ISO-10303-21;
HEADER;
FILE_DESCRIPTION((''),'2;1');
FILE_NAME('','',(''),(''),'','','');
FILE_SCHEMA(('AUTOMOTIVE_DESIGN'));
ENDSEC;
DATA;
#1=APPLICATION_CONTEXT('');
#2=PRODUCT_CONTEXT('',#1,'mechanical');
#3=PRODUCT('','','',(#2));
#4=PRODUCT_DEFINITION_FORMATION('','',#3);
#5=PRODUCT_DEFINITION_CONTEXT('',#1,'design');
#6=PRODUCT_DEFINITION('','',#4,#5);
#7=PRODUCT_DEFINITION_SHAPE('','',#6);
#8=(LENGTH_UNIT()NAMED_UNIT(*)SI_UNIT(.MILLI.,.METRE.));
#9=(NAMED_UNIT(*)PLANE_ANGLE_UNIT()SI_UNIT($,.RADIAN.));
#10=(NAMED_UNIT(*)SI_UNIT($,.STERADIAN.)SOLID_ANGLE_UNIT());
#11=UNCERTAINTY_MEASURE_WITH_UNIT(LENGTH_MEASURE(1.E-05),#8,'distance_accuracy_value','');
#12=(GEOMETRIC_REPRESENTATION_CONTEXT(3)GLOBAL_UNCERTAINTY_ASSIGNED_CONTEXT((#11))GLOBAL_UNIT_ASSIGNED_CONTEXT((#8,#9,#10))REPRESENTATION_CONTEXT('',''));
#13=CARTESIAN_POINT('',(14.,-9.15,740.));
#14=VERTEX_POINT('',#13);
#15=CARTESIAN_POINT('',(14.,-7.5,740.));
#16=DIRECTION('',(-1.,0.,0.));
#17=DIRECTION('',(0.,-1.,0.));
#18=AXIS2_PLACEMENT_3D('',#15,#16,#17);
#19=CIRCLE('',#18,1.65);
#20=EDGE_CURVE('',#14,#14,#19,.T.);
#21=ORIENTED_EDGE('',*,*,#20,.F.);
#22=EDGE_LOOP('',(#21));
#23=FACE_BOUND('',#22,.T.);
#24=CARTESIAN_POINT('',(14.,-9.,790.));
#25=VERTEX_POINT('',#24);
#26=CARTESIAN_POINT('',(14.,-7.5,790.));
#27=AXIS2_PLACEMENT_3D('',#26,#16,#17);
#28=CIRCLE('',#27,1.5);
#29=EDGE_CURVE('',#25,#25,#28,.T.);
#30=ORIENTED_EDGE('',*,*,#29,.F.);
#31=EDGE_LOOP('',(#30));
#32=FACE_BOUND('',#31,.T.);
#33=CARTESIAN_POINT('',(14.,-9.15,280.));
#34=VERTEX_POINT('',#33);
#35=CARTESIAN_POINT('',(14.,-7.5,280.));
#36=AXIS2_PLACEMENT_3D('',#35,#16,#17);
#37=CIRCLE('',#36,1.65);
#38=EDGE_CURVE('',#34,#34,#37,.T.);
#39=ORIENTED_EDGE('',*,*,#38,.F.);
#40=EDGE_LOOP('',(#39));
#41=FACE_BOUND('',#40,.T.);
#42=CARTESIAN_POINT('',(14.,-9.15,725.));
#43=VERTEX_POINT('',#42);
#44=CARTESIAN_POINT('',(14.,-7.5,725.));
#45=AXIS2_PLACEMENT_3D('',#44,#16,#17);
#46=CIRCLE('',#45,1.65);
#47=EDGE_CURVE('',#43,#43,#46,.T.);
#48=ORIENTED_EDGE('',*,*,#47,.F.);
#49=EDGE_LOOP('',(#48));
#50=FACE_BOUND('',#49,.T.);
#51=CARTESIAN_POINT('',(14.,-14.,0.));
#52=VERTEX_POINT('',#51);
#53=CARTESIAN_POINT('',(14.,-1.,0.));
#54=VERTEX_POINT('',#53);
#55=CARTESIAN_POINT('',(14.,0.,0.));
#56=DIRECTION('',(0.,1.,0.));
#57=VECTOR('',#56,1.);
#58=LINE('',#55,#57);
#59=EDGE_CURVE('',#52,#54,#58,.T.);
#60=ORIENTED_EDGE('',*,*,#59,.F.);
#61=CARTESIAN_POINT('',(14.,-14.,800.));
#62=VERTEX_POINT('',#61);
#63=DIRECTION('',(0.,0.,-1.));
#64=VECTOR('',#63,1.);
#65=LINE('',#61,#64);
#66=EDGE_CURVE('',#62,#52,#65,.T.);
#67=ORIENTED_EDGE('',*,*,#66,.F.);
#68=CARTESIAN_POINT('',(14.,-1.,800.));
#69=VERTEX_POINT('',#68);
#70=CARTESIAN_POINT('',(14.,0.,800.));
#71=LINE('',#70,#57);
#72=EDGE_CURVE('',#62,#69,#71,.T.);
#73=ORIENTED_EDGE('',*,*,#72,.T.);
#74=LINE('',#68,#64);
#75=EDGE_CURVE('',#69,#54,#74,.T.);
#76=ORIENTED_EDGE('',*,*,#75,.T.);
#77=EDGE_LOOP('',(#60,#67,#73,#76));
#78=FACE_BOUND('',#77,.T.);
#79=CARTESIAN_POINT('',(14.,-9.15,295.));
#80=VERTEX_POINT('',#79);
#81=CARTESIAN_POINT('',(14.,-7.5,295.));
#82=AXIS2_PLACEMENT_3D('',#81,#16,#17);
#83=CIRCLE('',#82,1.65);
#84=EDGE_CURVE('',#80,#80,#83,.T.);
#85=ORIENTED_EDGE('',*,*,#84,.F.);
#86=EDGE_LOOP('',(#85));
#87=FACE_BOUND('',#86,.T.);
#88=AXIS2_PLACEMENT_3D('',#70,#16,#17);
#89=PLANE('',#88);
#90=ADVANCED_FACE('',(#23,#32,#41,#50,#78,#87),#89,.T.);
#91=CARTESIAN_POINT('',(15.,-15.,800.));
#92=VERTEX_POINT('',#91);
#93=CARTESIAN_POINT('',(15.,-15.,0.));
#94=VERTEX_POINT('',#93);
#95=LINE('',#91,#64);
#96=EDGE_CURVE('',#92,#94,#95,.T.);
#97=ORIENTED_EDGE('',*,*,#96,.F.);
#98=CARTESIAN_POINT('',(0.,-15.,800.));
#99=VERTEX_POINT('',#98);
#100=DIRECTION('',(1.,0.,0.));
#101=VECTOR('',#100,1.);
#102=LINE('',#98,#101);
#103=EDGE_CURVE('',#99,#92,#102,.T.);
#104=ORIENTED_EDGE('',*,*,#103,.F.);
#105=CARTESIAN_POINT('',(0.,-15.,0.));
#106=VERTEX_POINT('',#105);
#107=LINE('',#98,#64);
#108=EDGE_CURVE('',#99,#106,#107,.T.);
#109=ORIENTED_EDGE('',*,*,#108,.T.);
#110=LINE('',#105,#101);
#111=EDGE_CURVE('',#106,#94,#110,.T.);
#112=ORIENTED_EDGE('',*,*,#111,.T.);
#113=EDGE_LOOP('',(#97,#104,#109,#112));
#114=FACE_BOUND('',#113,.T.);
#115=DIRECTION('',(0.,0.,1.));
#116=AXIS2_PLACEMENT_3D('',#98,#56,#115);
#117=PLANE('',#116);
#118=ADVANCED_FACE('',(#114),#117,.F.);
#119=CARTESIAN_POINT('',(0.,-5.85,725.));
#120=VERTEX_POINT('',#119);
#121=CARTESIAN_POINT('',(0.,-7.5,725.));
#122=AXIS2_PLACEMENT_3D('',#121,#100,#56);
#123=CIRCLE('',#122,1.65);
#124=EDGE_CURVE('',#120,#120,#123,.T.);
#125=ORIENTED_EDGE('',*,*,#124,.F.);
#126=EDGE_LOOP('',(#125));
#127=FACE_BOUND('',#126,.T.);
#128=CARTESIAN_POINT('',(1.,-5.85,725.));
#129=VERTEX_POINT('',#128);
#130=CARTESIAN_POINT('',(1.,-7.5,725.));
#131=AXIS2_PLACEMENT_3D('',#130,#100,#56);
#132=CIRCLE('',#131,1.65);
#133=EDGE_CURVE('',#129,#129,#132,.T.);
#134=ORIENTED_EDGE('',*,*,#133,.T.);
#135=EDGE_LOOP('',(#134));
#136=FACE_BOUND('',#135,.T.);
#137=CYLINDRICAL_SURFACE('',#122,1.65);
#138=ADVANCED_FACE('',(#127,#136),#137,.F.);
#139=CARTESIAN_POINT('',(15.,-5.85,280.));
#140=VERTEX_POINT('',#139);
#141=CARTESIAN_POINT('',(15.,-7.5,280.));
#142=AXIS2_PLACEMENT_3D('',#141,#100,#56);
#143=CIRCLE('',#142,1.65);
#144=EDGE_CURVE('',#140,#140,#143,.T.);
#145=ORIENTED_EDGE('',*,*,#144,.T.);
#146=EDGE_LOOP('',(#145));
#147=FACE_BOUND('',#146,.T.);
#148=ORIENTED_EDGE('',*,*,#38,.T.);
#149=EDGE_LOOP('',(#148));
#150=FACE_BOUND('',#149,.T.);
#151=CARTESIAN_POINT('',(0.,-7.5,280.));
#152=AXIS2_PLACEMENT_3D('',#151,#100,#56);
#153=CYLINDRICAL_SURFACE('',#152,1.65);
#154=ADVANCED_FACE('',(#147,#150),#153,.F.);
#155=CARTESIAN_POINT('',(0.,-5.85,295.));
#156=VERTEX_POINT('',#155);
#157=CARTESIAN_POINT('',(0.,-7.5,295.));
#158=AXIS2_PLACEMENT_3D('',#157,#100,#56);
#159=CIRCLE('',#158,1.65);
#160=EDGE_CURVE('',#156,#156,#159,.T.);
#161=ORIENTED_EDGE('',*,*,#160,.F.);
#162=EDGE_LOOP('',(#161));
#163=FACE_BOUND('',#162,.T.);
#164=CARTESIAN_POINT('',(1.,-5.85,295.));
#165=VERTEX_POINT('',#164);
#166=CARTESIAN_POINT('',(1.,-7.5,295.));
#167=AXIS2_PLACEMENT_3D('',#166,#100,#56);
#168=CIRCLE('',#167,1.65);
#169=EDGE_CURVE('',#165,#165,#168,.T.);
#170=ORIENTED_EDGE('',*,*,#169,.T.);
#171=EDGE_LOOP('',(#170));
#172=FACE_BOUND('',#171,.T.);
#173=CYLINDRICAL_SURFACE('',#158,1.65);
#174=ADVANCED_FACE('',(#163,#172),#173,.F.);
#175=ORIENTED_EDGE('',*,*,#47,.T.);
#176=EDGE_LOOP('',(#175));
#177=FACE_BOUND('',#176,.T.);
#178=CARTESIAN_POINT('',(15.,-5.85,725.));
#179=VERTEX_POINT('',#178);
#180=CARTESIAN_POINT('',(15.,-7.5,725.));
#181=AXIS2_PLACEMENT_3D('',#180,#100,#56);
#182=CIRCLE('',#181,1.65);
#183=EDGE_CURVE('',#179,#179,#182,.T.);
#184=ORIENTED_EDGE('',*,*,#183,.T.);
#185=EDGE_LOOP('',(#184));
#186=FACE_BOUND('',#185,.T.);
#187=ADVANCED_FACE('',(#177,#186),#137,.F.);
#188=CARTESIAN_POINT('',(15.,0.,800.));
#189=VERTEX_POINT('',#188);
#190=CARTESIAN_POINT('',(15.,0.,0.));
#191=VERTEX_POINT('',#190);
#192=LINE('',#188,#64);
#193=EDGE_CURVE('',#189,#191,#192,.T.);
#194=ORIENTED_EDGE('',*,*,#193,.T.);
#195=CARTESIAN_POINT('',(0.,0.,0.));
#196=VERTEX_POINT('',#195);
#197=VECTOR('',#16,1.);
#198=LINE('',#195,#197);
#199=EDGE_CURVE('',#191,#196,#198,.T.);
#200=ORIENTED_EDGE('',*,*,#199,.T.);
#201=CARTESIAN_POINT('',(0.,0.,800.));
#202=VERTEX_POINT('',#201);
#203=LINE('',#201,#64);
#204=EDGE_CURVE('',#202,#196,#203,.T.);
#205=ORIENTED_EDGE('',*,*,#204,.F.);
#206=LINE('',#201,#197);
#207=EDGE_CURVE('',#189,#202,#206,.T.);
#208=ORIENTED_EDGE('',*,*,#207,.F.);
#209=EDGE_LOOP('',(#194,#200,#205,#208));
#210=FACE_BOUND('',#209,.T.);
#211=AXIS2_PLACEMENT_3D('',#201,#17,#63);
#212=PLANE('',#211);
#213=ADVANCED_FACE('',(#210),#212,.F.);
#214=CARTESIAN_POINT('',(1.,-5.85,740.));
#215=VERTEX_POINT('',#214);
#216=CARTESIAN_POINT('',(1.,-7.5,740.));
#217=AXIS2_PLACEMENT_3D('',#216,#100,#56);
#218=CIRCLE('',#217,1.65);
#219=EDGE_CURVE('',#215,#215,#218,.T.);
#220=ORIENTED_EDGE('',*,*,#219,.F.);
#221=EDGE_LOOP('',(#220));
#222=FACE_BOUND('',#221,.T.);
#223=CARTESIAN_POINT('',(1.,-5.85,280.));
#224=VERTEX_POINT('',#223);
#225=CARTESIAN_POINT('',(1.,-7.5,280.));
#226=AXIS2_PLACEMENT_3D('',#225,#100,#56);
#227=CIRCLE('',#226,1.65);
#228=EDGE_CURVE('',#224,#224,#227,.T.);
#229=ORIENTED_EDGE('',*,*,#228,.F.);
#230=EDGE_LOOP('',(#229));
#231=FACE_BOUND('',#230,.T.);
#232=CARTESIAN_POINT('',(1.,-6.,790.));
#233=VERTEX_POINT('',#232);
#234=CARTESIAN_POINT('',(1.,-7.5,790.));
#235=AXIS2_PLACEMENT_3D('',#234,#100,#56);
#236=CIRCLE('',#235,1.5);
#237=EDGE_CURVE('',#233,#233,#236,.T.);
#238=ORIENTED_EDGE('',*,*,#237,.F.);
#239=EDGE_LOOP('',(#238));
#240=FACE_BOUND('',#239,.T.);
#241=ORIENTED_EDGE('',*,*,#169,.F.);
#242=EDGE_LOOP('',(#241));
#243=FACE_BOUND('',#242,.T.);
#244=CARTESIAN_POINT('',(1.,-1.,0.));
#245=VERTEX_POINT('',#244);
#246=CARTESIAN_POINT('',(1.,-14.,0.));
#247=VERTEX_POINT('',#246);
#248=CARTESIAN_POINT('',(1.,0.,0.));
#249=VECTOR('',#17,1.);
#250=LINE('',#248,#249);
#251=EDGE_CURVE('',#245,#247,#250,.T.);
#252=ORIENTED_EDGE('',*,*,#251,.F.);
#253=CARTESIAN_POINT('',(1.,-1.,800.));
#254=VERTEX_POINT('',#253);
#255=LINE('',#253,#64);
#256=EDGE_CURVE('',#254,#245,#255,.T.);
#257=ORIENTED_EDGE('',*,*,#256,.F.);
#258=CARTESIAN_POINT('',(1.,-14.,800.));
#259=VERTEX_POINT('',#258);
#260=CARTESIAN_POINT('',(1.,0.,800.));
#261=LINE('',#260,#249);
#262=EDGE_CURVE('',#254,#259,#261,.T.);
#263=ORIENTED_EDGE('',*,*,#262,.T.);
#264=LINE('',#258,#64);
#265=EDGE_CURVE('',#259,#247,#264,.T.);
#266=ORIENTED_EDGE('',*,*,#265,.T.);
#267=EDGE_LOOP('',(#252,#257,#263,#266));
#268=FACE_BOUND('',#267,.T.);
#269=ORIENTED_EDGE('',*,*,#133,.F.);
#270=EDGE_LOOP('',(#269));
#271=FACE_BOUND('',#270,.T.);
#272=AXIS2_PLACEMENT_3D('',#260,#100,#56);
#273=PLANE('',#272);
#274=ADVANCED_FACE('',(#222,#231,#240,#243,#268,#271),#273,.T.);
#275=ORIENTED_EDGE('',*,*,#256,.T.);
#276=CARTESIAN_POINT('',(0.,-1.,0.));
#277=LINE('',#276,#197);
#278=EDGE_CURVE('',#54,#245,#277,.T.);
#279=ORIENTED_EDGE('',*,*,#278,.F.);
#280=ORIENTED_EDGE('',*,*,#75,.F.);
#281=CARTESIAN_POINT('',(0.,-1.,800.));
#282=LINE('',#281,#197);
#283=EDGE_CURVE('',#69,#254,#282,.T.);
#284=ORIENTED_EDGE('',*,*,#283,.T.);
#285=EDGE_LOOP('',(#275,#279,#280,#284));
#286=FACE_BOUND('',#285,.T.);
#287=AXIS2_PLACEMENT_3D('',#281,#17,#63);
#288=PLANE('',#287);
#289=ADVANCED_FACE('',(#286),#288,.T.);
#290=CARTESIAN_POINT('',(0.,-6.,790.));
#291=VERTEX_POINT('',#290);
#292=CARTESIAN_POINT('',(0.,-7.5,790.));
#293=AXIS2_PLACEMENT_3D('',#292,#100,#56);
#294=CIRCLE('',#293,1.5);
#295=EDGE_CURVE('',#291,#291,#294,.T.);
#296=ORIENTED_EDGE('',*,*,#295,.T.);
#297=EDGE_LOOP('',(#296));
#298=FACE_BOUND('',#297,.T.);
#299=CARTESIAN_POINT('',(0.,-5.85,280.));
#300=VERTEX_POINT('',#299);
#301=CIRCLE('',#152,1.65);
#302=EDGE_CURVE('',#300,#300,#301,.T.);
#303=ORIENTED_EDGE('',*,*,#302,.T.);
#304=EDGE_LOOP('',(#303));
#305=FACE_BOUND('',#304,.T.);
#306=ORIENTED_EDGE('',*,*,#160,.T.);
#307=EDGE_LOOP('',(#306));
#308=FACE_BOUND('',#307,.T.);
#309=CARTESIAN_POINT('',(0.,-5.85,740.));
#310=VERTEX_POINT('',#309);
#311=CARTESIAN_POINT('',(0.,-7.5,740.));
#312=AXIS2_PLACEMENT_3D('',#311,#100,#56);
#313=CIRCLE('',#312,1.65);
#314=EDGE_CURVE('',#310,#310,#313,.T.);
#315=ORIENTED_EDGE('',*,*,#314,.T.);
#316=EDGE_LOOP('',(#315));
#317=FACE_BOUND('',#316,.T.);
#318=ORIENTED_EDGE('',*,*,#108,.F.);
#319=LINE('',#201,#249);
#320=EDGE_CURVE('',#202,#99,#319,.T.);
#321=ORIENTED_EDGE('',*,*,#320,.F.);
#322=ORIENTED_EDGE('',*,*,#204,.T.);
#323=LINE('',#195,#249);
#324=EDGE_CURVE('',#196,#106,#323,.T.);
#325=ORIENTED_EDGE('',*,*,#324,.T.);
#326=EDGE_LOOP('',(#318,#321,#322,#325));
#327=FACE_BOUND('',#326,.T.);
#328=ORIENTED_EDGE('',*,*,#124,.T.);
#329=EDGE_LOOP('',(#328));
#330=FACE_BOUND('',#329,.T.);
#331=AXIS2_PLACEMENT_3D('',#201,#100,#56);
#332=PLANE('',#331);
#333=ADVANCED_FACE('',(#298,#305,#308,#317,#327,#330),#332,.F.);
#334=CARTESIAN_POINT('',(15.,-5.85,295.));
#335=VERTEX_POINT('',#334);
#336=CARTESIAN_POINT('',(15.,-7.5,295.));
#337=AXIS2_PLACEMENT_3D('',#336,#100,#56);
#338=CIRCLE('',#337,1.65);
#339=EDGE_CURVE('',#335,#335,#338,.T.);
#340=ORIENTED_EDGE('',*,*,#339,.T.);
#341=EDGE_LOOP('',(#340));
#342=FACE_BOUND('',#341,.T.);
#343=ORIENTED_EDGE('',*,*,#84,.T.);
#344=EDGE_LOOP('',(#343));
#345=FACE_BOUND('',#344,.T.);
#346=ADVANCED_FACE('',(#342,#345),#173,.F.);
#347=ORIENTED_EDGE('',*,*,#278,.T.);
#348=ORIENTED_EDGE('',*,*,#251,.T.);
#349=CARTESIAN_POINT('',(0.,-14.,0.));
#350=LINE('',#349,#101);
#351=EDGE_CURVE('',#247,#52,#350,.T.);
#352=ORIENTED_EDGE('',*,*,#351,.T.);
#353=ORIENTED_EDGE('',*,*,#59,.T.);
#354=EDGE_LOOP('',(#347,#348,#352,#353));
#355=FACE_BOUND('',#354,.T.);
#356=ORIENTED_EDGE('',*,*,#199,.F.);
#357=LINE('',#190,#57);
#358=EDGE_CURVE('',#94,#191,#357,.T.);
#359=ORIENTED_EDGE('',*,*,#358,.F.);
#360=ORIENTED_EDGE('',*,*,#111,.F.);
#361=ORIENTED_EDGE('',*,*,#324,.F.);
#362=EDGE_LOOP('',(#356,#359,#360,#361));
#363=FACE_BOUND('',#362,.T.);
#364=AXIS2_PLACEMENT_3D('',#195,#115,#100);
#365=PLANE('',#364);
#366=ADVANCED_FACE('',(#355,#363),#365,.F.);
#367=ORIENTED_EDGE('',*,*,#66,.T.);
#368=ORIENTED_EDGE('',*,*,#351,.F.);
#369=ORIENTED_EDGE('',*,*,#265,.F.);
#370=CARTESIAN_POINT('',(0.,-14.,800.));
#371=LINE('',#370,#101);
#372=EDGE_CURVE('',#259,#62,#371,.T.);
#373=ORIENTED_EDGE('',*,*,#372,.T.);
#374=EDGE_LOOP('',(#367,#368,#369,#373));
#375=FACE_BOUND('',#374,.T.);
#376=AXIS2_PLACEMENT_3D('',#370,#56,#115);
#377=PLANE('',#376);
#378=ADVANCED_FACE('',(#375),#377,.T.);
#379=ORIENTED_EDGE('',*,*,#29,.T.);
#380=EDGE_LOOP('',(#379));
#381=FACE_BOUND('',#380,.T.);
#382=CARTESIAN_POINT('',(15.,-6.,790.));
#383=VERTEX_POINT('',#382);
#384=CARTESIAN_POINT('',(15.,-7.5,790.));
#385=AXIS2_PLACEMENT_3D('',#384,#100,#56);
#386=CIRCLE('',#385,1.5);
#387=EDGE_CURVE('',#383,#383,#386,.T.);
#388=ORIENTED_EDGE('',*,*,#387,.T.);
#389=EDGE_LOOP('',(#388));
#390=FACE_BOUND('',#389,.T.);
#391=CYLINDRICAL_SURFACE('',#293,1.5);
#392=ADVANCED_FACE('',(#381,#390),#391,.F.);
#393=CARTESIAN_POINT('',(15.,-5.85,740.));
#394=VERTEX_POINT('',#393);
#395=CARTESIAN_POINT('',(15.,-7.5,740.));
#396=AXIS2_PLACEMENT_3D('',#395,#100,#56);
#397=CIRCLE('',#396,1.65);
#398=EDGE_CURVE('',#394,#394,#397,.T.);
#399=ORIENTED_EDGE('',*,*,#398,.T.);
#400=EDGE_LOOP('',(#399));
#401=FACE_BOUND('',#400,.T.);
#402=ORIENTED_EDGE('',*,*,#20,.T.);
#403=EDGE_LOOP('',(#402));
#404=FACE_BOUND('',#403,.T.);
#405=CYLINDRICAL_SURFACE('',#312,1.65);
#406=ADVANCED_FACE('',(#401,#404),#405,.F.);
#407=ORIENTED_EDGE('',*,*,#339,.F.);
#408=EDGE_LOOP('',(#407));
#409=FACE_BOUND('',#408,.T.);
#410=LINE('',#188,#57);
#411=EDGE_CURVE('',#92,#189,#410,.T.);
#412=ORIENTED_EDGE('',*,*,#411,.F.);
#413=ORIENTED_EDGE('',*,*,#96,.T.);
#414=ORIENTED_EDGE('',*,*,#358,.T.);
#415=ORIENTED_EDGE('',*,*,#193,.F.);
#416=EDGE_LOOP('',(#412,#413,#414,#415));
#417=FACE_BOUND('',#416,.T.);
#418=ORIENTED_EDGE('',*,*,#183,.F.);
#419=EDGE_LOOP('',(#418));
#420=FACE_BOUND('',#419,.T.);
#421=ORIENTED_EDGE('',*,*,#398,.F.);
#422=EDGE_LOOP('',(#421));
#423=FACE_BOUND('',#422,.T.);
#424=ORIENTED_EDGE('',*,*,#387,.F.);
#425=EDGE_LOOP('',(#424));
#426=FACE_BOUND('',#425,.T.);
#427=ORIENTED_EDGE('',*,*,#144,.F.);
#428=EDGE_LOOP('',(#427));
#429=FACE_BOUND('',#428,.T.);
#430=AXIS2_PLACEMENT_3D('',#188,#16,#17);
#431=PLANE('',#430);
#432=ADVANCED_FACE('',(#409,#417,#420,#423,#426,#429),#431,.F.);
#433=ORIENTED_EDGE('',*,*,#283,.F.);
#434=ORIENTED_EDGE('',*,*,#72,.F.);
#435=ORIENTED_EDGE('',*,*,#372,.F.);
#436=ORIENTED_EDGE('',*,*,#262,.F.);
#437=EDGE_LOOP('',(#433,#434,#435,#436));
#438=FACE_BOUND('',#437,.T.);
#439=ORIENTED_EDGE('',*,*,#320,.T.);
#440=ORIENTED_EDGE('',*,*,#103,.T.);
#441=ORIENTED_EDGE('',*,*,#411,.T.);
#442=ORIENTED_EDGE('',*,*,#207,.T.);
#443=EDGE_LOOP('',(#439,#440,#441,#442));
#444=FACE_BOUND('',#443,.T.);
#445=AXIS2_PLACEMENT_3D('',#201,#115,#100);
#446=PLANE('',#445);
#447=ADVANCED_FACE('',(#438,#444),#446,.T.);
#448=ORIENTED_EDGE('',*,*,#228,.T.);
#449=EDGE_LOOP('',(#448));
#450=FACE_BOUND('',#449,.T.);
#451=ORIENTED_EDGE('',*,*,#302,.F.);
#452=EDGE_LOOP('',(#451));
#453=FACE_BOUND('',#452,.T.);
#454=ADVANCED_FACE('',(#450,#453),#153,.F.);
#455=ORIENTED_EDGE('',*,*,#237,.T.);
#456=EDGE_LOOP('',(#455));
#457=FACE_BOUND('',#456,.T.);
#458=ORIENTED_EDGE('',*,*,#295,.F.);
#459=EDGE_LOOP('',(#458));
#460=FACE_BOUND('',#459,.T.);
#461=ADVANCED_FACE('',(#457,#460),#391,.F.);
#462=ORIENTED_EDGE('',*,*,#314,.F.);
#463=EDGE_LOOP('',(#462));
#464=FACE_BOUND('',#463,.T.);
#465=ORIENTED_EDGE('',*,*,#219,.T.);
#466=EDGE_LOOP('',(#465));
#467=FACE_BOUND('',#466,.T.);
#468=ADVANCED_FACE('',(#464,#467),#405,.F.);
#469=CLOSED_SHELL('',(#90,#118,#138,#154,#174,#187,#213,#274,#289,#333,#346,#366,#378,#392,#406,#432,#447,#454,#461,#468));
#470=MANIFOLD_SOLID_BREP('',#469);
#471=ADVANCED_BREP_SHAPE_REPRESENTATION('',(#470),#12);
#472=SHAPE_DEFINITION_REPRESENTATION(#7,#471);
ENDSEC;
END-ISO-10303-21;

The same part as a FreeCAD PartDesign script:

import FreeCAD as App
import Part
import Sketcher

V = App.Vector
Q = App.Units.Quantity

doc = App.newDocument("Part")
body = doc.addObject("PartDesign::Body", "Body")

sketch1 = body.newObject("Sketcher::SketchObject", "Sketch")
sketch1.AttachmentSupport = (doc.getObject("XY_Plane"), [""])
sketch1.MapMode = "FlatFace"
sketch1.addGeometry(Part.LineSegment(V(0, 0, 0), V(0, -15, 0)), False)
sketch1.addGeometry(Part.LineSegment(V(0, -15, 0), V(15, -15, 0)), False)
sketch1.addGeometry(Part.LineSegment(V(15, -15, 0), V(15, 0, 0)), False)
sketch1.addGeometry(Part.LineSegment(V(15, 0, 0), V(0, 0, 0)), False)
sketch1.addGeometry(Part.LineSegment(V(14, -14, 0), V(1, -14, 0)), False)
sketch1.addGeometry(Part.LineSegment(V(1, -14, 0), V(1, -1, 0)), False)
sketch1.addGeometry(Part.LineSegment(V(1, -1, 0), V(14, -1, 0)), False)
sketch1.addGeometry(Part.LineSegment(V(14, -1, 0), V(14, -14, 0)), False)
sketch1.addConstraint(Sketcher.Constraint("Coincident", 0, 2, 1, 1))
sketch1.addConstraint(Sketcher.Constraint("Coincident", 1, 2, 2, 1))
sketch1.addConstraint(Sketcher.Constraint("Coincident", 2, 2, 3, 1))
sketch1.addConstraint(Sketcher.Constraint("Coincident", 3, 2, 0, 1))
sketch1.addConstraint(Sketcher.Constraint("Coincident", 4, 2, 5, 1))
sketch1.addConstraint(Sketcher.Constraint("Coincident", 5, 2, 6, 1))
sketch1.addConstraint(Sketcher.Constraint("Coincident", 6, 2, 7, 1))
sketch1.addConstraint(Sketcher.Constraint("Coincident", 7, 2, 4, 1))
sketch1.addConstraint(Sketcher.Constraint("Vertical", 0))
sketch1.addConstraint(Sketcher.Constraint("Horizontal", 1))
sketch1.addConstraint(Sketcher.Constraint("Vertical", 2))
sketch1.addConstraint(Sketcher.Constraint("Horizontal", 3))
sketch1.addConstraint(Sketcher.Constraint("Horizontal", 4))
sketch1.addConstraint(Sketcher.Constraint("Vertical", 5))
sketch1.addConstraint(Sketcher.Constraint("Horizontal", 6))
sketch1.addConstraint(Sketcher.Constraint("Vertical", 7))
sketch1.addConstraint(Sketcher.Constraint("Coincident", 3, 2, -1, 1))
sketch1.addConstraint(Sketcher.Constraint("Equal", 3, 0))
sketch1.addConstraint(Sketcher.Constraint("Equal", 6, 5))
sketch1.addConstraint(Sketcher.Constraint("DistanceX", 1, 1, 1, 2, Q("15 mm")))
sketch1.addConstraint(Sketcher.Constraint("DistanceX", 4, 2, 4, 1, Q("13 mm")))
sketch1.addConstraint(Sketcher.Constraint("DistanceX", -1, 1, 4, 2, Q("1 mm")))
sketch1.addConstraint(Sketcher.Constraint("DistanceY", 4, 2, -1, 1, Q("14 mm")))
pad1 = body.newObject("PartDesign::Pad", "Pad")
pad1.Profile = sketch1
pad1.Length = 800

sketch2 = body.newObject("Sketcher::SketchObject", "Sketch001")
sketch2.AttachmentSupport = (doc.getObject("YZ_Plane"), [""])
sketch2.MapMode = "FlatFace"
sketch2.AttachmentOffset = App.Placement(V(0, 0, 15), App.Rotation())
sketch2.addGeometry(Part.Circle(V(-7.5, 790, 0), V(0, 0, 1), 1.5), False)
sketch2.addConstraint(Sketcher.Constraint("Diameter", 0, Q("3 mm")))
sketch2.addConstraint(Sketcher.Constraint("DistanceY", -1, 1, 0, 3, Q("790 mm")))
sketch2.addConstraint(Sketcher.Constraint("DistanceX", 0, 3, -1, 1, Q("7.5 mm")))
pocket1 = body.newObject("PartDesign::Pocket", "Pocket")
pocket1.Profile = sketch2
pocket1.Type = "ThroughAll"

sketch3 = body.newObject("Sketcher::SketchObject", "Sketch002")
sketch3.AttachmentSupport = (doc.getObject("YZ_Plane"), [""])
sketch3.MapMode = "FlatFace"
sketch3.AttachmentOffset = App.Placement(V(0, 0, 15), App.Rotation())
sketch3.addGeometry(Part.Circle(V(-7.5, 280, 0), V(0, 0, 1), 1.6), False)
sketch3.addGeometry(Part.Circle(V(-7.5, 295, 0), V(0, 0, 1), 1.6), False)
sketch3.addGeometry(Part.Circle(V(-7.5, 725, 0), V(0, 0, 1), 1.6), False)
sketch3.addGeometry(Part.Circle(V(-7.5, 740, 0), V(0, 0, 1), 1.6), False)
sketch3.addConstraint(Sketcher.Constraint("Equal", 0, 1))
sketch3.addConstraint(Sketcher.Constraint("Equal", 1, 2))
sketch3.addConstraint(Sketcher.Constraint("Equal", 2, 3))
sketch3.addConstraint(Sketcher.Constraint("Vertical", 0, 3, 1, 3))
sketch3.addConstraint(Sketcher.Constraint("Vertical", 1, 3, 2, 3))
sketch3.addConstraint(Sketcher.Constraint("Vertical", 2, 3, 3, 3))
sketch3.addConstraint(Sketcher.Constraint("Diameter", 0, Q("3.3 mm")))
sketch3.addConstraint(Sketcher.Constraint("DistanceY", -1, 1, 0, 3, Q("280 mm")))
sketch3.addConstraint(Sketcher.Constraint("DistanceY", -1, 1, 1, 3, Q("295 mm")))
sketch3.addConstraint(Sketcher.Constraint("DistanceY", -1, 1, 2, 3, Q("725 mm")))
sketch3.addConstraint(Sketcher.Constraint("DistanceY", -1, 1, 3, 3, Q("740 mm")))
sketch3.addConstraint(Sketcher.Constraint("DistanceX", 0, 3, -1, 1, Q("7.5 mm")))
pocket2 = body.newObject("PartDesign::Pocket", "Pocket001")
pocket2.Profile = sketch3
pocket2.Type = "ThroughAll"

doc.recompute()
